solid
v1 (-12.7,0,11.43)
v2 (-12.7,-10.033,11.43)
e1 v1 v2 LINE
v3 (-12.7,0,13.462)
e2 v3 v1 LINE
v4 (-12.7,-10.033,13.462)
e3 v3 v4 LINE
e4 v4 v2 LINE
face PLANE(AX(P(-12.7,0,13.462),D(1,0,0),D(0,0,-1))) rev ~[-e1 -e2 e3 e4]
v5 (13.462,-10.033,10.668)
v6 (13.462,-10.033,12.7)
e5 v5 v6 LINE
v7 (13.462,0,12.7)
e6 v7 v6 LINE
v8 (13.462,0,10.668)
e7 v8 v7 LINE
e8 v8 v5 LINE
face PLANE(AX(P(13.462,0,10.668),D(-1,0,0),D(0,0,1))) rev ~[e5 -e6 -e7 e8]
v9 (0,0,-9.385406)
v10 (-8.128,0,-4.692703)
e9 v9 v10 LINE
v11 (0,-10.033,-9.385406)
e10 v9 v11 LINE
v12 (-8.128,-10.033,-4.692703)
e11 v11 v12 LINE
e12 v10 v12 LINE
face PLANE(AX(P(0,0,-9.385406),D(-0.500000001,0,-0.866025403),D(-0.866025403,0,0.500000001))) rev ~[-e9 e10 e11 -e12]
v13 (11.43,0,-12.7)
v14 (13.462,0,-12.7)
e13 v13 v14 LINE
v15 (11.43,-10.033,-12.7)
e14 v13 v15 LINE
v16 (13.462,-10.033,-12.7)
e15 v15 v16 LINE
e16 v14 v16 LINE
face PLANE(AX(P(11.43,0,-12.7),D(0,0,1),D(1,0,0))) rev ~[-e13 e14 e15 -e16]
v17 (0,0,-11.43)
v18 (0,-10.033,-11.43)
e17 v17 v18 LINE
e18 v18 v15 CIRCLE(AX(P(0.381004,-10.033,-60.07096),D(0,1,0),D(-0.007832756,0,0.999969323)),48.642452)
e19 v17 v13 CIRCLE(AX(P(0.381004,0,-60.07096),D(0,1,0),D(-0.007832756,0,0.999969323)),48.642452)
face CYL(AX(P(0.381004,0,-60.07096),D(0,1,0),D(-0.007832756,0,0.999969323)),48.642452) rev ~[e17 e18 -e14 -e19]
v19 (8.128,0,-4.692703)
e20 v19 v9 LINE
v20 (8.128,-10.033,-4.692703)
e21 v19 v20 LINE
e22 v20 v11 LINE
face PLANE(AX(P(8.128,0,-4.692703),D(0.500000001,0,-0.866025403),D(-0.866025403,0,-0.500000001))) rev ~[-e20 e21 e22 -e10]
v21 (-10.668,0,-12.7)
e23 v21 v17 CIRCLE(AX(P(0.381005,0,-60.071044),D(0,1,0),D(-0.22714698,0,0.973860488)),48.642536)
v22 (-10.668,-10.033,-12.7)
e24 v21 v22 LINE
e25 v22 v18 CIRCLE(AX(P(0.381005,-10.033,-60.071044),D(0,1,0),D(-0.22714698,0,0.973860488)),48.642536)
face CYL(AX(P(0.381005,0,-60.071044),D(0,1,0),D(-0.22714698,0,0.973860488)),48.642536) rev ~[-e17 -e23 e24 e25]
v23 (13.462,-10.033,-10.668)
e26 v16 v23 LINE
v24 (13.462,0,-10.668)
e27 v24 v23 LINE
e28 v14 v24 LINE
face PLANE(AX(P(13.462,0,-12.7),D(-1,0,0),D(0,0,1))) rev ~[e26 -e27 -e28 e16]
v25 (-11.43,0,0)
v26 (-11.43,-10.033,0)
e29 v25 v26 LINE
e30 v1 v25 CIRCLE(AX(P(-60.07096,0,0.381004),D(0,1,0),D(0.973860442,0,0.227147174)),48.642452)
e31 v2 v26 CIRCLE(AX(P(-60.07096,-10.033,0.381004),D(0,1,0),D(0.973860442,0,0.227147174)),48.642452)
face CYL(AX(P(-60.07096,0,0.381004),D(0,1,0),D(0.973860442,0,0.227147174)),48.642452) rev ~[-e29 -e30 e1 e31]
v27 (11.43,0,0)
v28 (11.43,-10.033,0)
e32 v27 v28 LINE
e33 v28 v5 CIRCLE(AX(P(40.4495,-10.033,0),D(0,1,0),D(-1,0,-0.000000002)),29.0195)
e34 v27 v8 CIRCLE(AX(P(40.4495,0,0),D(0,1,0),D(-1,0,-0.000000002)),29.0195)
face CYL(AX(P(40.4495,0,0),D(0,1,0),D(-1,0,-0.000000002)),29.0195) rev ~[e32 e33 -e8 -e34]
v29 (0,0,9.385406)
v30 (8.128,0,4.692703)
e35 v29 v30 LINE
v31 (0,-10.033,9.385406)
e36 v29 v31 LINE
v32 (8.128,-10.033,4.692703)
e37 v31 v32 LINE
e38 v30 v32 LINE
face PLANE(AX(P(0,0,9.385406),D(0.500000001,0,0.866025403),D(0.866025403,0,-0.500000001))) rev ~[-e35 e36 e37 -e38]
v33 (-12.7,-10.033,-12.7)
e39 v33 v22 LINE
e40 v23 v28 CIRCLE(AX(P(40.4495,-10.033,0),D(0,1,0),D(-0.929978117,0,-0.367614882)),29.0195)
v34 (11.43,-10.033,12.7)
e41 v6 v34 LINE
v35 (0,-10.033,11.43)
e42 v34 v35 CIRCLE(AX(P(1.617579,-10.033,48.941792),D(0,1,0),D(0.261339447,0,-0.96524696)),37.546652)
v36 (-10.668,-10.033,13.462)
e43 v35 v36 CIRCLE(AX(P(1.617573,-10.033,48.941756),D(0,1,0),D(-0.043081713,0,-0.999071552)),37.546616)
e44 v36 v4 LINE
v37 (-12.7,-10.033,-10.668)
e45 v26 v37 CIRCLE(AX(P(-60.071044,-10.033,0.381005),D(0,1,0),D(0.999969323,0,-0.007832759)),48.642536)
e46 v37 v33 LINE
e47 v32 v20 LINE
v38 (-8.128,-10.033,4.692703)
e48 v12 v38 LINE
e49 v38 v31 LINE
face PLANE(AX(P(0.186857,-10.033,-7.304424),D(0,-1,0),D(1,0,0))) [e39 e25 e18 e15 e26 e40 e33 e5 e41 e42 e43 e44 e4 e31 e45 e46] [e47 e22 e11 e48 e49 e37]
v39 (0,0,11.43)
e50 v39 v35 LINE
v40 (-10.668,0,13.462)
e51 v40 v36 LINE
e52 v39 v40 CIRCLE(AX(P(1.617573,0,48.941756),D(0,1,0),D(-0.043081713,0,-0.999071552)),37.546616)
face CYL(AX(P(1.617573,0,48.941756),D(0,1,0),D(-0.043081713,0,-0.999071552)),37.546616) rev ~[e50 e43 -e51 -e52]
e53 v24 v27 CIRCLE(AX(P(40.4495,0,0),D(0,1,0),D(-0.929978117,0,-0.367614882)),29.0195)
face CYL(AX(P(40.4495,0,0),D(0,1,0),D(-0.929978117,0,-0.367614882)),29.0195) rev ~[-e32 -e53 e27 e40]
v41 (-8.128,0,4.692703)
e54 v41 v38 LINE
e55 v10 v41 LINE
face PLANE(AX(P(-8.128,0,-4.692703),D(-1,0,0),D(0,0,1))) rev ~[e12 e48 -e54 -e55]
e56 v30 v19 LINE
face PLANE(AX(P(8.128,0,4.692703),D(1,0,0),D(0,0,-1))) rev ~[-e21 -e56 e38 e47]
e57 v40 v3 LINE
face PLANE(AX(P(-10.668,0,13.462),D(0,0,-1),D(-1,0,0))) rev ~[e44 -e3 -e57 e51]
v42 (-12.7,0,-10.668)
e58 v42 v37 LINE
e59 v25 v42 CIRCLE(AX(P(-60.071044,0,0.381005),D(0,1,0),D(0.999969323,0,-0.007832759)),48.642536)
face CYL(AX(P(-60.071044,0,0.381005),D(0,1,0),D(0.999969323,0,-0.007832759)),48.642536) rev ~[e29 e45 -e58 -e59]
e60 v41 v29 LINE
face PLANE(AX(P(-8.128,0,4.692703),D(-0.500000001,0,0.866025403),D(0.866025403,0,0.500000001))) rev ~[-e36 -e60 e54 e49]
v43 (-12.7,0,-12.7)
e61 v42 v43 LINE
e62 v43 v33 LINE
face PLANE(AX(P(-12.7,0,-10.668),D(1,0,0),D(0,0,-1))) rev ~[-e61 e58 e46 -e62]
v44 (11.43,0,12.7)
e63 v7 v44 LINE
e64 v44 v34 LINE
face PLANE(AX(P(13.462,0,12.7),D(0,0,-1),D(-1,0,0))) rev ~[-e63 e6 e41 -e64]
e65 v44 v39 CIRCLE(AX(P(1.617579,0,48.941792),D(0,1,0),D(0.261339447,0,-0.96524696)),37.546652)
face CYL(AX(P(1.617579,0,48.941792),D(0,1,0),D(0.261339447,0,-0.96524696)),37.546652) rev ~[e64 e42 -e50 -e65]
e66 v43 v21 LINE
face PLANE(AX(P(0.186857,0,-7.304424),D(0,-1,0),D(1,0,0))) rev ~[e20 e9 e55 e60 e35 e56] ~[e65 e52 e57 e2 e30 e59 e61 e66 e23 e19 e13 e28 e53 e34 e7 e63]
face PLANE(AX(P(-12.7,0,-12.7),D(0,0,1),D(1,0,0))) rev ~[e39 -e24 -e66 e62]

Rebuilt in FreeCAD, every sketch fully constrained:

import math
import FreeCAD as App
import Part
import Sketcher
Q = App.Units.Quantity


def add_polygon(sketch, points):
    """Adds a closed chain of lines whose ends are joined by coincident constraints."""
    first, n = sketch.GeometryCount, len(points)
    for a, b in zip(points, points[1:] + points[:1]):
        sketch.addGeometry(Part.LineSegment(App.Vector(*a, 0), App.Vector(*b, 0)), False)
    for i in range(n):
        sketch.addConstraint(Sketcher.Constraint("Coincident", first + i, 2, first + (i + 1) % n, 1))

doc = App.newDocument("Part")
body = doc.addObject("PartDesign::Body", "Body")

# Sketch on XZ plane
sketch1 = body.newObject("Sketcher::SketchObject", "Sketch")
sketch1.AttachmentSupport = (doc.getObject("XZ_Plane"), [""])
sketch1.MapMode = "FlatFace"
sketch1.addGeometry(Part.ArcOfCircle(Part.Circle(App.Vector(-60.071044, 0.381005, 0), App.Vector(0, 0, 1), 48.642536), math.radians(-13.129161), math.radians(-0.448789)), False)  # 0
sketch1.addGeometry(Part.LineSegment(App.Vector(-12.7, -10.668, 0), App.Vector(-12.7, -12.7, 0)), False)  # 1
sketch1.addGeometry(Part.LineSegment(App.Vector(-12.7, -12.7, 0), App.Vector(-10.668, -12.7, 0)), False)  # 2
sketch1.addGeometry(Part.ArcOfCircle(Part.Circle(App.Vector(0.381005, -60.071044, 0), App.Vector(0, 0, 1), 48.642536), math.radians(90.448789), math.radians(103.129161)), False)  # 3
sketch1.addGeometry(Part.ArcOfCircle(Part.Circle(App.Vector(0.381004, -60.07096, 0), App.Vector(0, 0, 1), 48.642452), math.radians(76.870828), math.radians(90.448788)), False)  # 4
sketch1.addGeometry(Part.LineSegment(App.Vector(11.43, -12.7, 0), App.Vector(13.462, -12.7, 0)), False)  # 5
sketch1.addGeometry(Part.LineSegment(App.Vector(13.462, -12.7, 0), App.Vector(13.462, -10.668, 0)), False)  # 6
sketch1.addGeometry(Part.ArcOfCircle(Part.Circle(App.Vector(40.4495, 0, 0), App.Vector(0, 0, 1), 29.0195), math.radians(180), math.radians(201.568596)), False)  # 7
sketch1.addGeometry(Part.ArcOfCircle(Part.Circle(App.Vector(40.4495, 0, 0), App.Vector(0, 0, 1), 29.0195), math.radians(158.431404), math.radians(180)), False)  # 8
sketch1.addGeometry(Part.LineSegment(App.Vector(13.462, 10.668, 0), App.Vector(13.462, 12.7, 0)), False)  # 9
sketch1.addGeometry(Part.LineSegment(App.Vector(13.462, 12.7, 0), App.Vector(11.43, 12.7, 0)), False)  # 10
sketch1.addGeometry(Part.ArcOfCircle(Part.Circle(App.Vector(1.617579, 48.941792, 0), App.Vector(0, 0, 1), 37.546652), math.radians(-92.469172), math.radians(-74.850445)), False)  # 11
sketch1.addGeometry(Part.ArcOfCircle(Part.Circle(App.Vector(1.617573, 48.941756, 0), App.Vector(0, 0, 1), 37.546616), math.radians(-109.099431), math.radians(-92.469165)), False)  # 12
sketch1.addGeometry(Part.LineSegment(App.Vector(-10.668, 13.462, 0), App.Vector(-12.7, 13.462, 0)), False)  # 13
sketch1.addGeometry(Part.LineSegment(App.Vector(-12.7, 13.462, 0), App.Vector(-12.7, 11.43, 0)), False)  # 14
sketch1.addGeometry(Part.ArcOfCircle(Part.Circle(App.Vector(-60.07096, 0.381004, 0), App.Vector(0, 0, 1), 48.642452), math.radians(-0.448788), math.radians(13.129172)), False)  # 15
add_polygon(sketch1, [(8.128, -4.692703), (0, -9.385406), (-8.128, -4.692703), (-8.128, 4.692703), (0, 9.385406), (8.128, 4.692703)])  # lines 16-21
sketch1.addConstraint(Sketcher.Constraint("Coincident", 0, 1, 1, 1))
sketch1.addConstraint(Sketcher.Constraint("Coincident", 1, 2, 2, 1))
sketch1.addConstraint(Sketcher.Constraint("Coincident", 2, 2, 3, 2))
sketch1.addConstraint(Sketcher.Constraint("Coincident", 3, 1, 4, 2))
sketch1.addConstraint(Sketcher.Constraint("Coincident", 4, 1, 5, 1))
sketch1.addConstraint(Sketcher.Constraint("Coincident", 5, 2, 6, 1))
sketch1.addConstraint(Sketcher.Constraint("Coincident", 6, 2, 7, 2))
sketch1.addConstraint(Sketcher.Constraint("Coincident", 7, 1, 8, 2))
sketch1.addConstraint(Sketcher.Constraint("Coincident", 8, 1, 9, 1))
sketch1.addConstraint(Sketcher.Constraint("Coincident", 9, 2, 10, 1))
sketch1.addConstraint(Sketcher.Constraint("Coincident", 10, 2, 11, 2))
sketch1.addConstraint(Sketcher.Constraint("Coincident", 11, 1, 12, 2))
sketch1.addConstraint(Sketcher.Constraint("Coincident", 12, 1, 13, 1))
sketch1.addConstraint(Sketcher.Constraint("Coincident", 13, 2, 14, 1))
sketch1.addConstraint(Sketcher.Constraint("Coincident", 14, 2, 15, 2))
sketch1.addConstraint(Sketcher.Constraint("Coincident", 15, 1, 0, 2))
sketch1.addConstraint(Sketcher.Constraint("Vertical", 1))
sketch1.addConstraint(Sketcher.Constraint("Horizontal", 2))
sketch1.addConstraint(Sketcher.Constraint("Horizontal", 5))
sketch1.addConstraint(Sketcher.Constraint("Vertical", 6))
sketch1.addConstraint(Sketcher.Constraint("Vertical", 9))
sketch1.addConstraint(Sketcher.Constraint("Horizontal", 10))
sketch1.addConstraint(Sketcher.Constraint("Horizontal", 13))
sketch1.addConstraint(Sketcher.Constraint("Vertical", 14))
sketch1.addConstraint(Sketcher.Constraint("Vertical", 18))
sketch1.addConstraint(Sketcher.Constraint("Vertical", 21))
sketch1.addConstraint(Sketcher.Constraint("Coincident", 8, 3, 7, 3))
sketch1.addConstraint(Sketcher.Constraint("PointOnObject", 7, 3, -1))
sketch1.addConstraint(Sketcher.Constraint("PointOnObject", 3, 1, -2))
sketch1.addConstraint(Sketcher.Constraint("PointOnObject", 7, 1, -1))
sketch1.addConstraint(Sketcher.Constraint("PointOnObject", 11, 1, -2))
sketch1.addConstraint(Sketcher.Constraint("PointOnObject", 15, 1, -1))
sketch1.addConstraint(Sketcher.Constraint("PointOnObject", 16, 2, -2))
sketch1.addConstraint(Sketcher.Constraint("PointOnObject", 19, 2, -2))
sketch1.addConstraint(Sketcher.Constraint("DistanceY", 5, 2, 9, 2, Q("1 in")))
sketch1.addConstraint(Sketcher.Constraint("DistanceX", 2, 1, 2, 2, Q("0.08 in")))
sketch1.addConstraint(Sketcher.Constraint("DistanceX", 5, 1, 5, 2, Q("0.08 in")))
sketch1.addConstraint(Sketcher.Constraint("DistanceX", 10, 2, 10, 1, Q("0.08 in")))
sketch1.addConstraint(Sketcher.Constraint("DistanceX", 13, 2, 13, 1, Q("0.08 in")))
sketch1.addConstraint(Sketcher.Constraint("DistanceY", 1, 2, 1, 1, Q("0.08 in")))
sketch1.addConstraint(Sketcher.Constraint("DistanceY", 6, 1, 6, 2, Q("0.08 in")))
sketch1.addConstraint(Sketcher.Constraint("DistanceY", 9, 1, 9, 2, Q("0.08 in")))
sketch1.addConstraint(Sketcher.Constraint("DistanceY", 14, 2, 14, 1, Q("0.08 in")))
sketch1.addConstraint(Sketcher.Constraint("DistanceX", 0, 1, -1, 1, Q("0.5 in")))
sketch1.addConstraint(Sketcher.Constraint("DistanceY", 1, 2, -1, 1, Q("0.5 in")))
sketch1.addConstraint(Sketcher.Constraint("DistanceY", 4, 1, -1, 1, Q("0.5 in")))
sketch1.addConstraint(Sketcher.Constraint("DistanceX", 13, 2, -1, 1, Q("0.5 in")))
sketch1.addConstraint(Sketcher.Constraint("Radius", 7, Q("1.1425 in")))
sketch1.addConstraint(Sketcher.Constraint("DistanceY", 3, 1, 11, 1, Q("0.9 in")))
sketch1.addConstraint(Sketcher.Constraint("DistanceX", 2, 2, 17, 2, Q("0.1 in")))
sketch1.addConstraint(Sketcher.Constraint("DistanceY", 3, 1, -1, 1, Q("0.45 in")))
sketch1.addConstraint(Sketcher.Constraint("DistanceX", -1, 1, 4, 1, Q("0.45 in")))
sketch1.addConstraint(Sketcher.Constraint("DistanceY", -1, 1, 12, 1, Q("0.53 in")))
sketch1.addConstraint(Sketcher.Constraint("DistanceX", 15, 1, -1, 1, Q("0.45 in")))
sketch1.addConstraint(Sketcher.Constraint("DistanceX", -1, 1, 20, 2, Q("0.32 in")))
sketch1.addConstraint(Sketcher.Constraint("DistanceX", -1, 1, 4, 3, Q("0.0150002 in")))
sketch1.addConstraint(Sketcher.Constraint("DistanceY", -1, 1, 15, 3, Q("0.0150002 in")))
sketch1.addConstraint(Sketcher.Constraint("Radius", 0, 48.642536))
sketch1.addConstraint(Sketcher.Constraint("Radius", 3, 48.642536))
sketch1.addConstraint(Sketcher.Constraint("Radius", 11, 37.546652))
sketch1.addConstraint(Sketcher.Constraint("Radius", 12, 37.546616))
sketch1.addConstraint(Sketcher.Constraint("DistanceY", 18, 1, 18, 2, 9.385406))
sketch1.addConstraint(Sketcher.Constraint("DistanceY", 21, 2, 21, 1, 9.385406))
sketch1.addConstraint(Sketcher.Constraint("Distance", 16, 9.385406))
sketch1.addConstraint(Sketcher.Constraint("Distance", 17, 9.385406))
sketch1.addConstraint(Sketcher.Constraint("Distance", 19, 9.385406))
sketch1.addConstraint(Sketcher.Constraint("DistanceY", 16, 2, -1, 1, 9.385406))
pad1 = body.newObject("PartDesign::Pad", "Pad")
pad1.Profile = sketch1
pad1.Length = Q("0.395 in")

doc.recompute()
